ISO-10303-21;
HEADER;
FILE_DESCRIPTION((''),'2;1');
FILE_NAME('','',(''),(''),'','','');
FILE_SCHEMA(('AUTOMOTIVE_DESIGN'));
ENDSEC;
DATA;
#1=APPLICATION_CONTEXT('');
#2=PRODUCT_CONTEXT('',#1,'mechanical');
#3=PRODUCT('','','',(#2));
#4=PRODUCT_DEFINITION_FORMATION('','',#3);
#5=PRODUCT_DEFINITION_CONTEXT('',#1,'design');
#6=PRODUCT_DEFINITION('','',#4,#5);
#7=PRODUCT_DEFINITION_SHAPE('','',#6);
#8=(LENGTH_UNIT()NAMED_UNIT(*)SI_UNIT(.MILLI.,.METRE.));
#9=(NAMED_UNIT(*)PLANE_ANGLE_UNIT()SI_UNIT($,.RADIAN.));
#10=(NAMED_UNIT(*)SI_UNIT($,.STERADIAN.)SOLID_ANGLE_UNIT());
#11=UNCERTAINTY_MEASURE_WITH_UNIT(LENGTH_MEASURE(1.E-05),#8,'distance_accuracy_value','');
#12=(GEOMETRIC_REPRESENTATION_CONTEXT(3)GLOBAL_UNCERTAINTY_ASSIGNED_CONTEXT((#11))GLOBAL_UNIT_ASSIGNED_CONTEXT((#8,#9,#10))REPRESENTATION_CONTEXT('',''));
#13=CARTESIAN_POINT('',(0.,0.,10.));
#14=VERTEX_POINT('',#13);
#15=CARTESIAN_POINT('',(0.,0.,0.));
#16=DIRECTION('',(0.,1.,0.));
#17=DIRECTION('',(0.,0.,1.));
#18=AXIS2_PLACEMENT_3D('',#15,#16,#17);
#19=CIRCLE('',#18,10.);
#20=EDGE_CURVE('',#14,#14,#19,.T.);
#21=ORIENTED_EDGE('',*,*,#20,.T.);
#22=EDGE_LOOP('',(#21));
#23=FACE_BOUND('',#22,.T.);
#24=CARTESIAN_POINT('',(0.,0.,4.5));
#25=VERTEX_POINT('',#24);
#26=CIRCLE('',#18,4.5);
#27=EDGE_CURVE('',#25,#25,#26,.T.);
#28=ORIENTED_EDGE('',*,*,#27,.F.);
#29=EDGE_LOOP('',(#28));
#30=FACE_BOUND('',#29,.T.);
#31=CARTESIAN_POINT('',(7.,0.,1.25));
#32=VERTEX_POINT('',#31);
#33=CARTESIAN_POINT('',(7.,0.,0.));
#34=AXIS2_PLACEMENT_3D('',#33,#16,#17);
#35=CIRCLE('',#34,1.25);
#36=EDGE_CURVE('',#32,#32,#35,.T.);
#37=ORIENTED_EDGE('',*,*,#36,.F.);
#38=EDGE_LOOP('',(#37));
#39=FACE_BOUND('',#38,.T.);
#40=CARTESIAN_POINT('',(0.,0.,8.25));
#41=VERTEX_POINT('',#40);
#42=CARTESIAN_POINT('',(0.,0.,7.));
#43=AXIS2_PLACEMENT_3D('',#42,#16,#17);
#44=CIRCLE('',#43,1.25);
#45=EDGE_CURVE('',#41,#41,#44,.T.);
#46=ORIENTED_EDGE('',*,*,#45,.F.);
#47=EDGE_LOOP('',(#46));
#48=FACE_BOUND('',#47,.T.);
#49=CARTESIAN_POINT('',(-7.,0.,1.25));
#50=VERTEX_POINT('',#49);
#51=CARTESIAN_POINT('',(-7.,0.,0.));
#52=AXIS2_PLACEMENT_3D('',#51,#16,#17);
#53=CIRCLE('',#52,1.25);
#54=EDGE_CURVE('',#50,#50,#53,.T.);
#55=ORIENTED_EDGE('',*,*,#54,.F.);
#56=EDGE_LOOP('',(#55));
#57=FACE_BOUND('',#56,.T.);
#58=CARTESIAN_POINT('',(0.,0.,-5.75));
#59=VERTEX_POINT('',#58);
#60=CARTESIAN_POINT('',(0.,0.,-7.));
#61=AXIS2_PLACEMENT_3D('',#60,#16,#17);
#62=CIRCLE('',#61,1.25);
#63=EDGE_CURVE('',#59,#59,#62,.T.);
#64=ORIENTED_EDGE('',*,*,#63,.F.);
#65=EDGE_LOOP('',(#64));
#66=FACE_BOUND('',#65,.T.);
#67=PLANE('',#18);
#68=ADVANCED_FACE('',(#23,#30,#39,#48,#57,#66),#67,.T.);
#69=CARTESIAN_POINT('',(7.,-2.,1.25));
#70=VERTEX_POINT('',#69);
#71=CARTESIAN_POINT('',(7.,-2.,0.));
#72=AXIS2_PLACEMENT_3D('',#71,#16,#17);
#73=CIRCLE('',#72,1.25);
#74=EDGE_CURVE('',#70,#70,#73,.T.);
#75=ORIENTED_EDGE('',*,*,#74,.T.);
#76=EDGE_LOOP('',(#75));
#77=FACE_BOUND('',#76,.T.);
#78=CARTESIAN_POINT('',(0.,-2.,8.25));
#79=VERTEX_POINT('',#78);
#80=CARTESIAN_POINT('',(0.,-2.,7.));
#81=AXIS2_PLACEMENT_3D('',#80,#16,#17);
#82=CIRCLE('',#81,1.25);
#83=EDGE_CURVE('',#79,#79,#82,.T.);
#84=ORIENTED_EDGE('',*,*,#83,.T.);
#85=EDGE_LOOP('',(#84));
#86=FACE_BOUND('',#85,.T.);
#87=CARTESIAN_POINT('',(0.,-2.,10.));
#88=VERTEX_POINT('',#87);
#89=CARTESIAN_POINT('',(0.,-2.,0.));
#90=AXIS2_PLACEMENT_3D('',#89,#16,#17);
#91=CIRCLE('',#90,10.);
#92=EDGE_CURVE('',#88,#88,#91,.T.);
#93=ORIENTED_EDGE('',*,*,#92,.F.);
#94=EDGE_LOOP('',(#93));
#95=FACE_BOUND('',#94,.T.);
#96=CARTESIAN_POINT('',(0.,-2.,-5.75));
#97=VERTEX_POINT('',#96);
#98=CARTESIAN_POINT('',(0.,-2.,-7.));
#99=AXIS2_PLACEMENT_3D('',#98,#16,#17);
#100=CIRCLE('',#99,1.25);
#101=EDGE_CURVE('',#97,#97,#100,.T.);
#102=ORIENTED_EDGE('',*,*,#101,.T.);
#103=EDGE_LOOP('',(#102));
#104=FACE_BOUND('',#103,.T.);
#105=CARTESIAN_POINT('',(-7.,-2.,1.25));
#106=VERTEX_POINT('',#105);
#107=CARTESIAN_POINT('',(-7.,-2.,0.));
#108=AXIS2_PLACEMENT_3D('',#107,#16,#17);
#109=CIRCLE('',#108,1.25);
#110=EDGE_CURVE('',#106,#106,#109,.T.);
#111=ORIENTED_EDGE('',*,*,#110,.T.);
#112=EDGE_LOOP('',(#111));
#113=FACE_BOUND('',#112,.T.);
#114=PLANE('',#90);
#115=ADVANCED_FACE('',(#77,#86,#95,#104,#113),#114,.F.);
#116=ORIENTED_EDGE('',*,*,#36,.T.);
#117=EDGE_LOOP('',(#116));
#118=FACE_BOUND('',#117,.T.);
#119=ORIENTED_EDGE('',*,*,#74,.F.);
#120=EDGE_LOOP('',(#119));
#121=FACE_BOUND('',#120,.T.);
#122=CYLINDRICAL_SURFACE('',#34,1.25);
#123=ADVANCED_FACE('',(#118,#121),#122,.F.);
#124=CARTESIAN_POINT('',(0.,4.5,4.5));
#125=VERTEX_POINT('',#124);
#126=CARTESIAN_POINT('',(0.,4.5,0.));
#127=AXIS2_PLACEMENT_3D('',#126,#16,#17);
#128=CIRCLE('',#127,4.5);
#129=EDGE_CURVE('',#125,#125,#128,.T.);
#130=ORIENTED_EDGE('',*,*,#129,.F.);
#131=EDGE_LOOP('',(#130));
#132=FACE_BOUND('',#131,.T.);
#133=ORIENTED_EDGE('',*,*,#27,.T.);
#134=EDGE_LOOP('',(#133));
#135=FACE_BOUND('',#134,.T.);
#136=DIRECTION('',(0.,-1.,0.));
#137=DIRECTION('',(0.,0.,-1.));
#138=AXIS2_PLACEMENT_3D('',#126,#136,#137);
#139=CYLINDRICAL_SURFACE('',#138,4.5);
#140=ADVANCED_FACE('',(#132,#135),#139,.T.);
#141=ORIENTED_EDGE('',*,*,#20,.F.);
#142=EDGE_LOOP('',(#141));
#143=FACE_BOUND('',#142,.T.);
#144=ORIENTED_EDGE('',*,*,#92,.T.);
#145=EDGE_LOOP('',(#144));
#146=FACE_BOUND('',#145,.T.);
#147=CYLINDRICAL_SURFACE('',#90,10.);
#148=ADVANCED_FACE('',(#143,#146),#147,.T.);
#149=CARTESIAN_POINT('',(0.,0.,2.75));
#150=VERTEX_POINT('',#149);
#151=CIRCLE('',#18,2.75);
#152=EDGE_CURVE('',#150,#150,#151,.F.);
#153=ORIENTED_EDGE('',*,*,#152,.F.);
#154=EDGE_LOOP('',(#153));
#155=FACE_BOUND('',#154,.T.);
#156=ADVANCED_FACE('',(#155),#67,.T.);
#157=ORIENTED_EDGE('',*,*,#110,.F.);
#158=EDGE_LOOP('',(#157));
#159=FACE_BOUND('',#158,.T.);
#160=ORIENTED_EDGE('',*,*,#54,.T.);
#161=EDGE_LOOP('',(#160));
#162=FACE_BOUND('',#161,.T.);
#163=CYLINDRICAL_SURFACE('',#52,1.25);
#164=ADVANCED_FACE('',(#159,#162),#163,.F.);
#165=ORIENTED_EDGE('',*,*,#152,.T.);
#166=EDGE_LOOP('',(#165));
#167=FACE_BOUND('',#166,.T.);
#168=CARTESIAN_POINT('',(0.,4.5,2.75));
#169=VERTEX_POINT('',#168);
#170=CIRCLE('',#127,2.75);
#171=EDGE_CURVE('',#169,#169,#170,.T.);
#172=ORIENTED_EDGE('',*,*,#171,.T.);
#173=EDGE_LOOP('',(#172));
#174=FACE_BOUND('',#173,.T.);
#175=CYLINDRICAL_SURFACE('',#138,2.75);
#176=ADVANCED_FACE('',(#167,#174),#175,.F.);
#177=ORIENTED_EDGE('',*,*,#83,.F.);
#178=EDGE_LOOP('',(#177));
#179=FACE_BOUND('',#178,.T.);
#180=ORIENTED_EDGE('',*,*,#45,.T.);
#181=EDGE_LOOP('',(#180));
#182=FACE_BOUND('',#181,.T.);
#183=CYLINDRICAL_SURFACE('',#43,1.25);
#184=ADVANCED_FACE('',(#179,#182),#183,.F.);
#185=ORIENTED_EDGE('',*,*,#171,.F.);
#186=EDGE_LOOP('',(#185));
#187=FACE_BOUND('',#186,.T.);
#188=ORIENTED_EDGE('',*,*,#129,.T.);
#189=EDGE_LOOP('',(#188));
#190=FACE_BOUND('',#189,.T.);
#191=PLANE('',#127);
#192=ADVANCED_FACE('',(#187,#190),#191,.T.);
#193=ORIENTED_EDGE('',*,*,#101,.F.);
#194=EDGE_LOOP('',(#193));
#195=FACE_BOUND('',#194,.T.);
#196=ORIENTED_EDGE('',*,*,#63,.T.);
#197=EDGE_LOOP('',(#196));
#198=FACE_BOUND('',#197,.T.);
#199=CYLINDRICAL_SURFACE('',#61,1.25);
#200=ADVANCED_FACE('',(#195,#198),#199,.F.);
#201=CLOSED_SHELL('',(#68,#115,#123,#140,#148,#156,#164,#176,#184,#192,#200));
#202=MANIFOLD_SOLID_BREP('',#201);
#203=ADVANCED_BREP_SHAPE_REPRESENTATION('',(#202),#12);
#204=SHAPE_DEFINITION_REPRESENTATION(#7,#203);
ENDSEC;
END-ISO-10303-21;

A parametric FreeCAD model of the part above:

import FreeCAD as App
import Part
import Sketcher

V = App.Vector
Q = App.Units.Quantity


def add_polygon(sketch, points):
    """Adds a closed chain of lines whose ends are joined by coincident constraints."""
    first, n = sketch.GeometryCount, len(points)
    for a, b in zip(points, points[1:] + points[:1]):
        sketch.addGeometry(Part.LineSegment(App.Vector(*a, 0), App.Vector(*b, 0)), False)
    for i in range(n):
        sketch.addConstraint(Sketcher.Constraint("Coincident", first + i, 2, first + (i + 1) % n, 1))

doc = App.newDocument("Part")
body = doc.addObject("PartDesign::Body", "Body")

sketch1 = doc.addObject("Sketcher::SketchObject", "Sketch")
body.addObject(sketch1)
sketch1.AttachmentSupport = (doc.XZ_Plane, [""])
sketch1.MapMode = "FlatFace"
sketch1.addGeometry(Part.Circle(V(0, 0, 0), V(0, 0, 1), 10), False)
sketch1.addConstraint([
    Sketcher.Constraint("Coincident", 0, 3, -1, 1),
    Sketcher.Constraint("Diameter", 0, Q("20 mm")),
])
pad1 = doc.addObject("PartDesign::Pad", "Pad")
body.addObject(pad1)
pad1.Profile = sketch1
pad1.Length = 2

sketch2 = doc.addObject("Sketcher::SketchObject", "Sketch001")
body.addObject(sketch2)
sketch2.AttachmentSupport = (doc.XZ_Plane, [""])
sketch2.MapMode = "FlatFace"
sketch2.addGeometry([
    Part.Circle(V(0, 0, 0), V(0, 0, 1), 4.5),
    Part.Circle(V(0, 0, 0), V(0, 0, 1), 2.8),
], False)
sketch2.addConstraint([
    Sketcher.Constraint("Coincident", 0, 3, -1, 1),
    Sketcher.Constraint("Coincident", 1, 3, -1, 1),
    Sketcher.Constraint("Diameter", 0, Q("9 mm")),
    Sketcher.Constraint("Diameter", 1, Q("5.5 mm")),
])
pad2 = doc.addObject("PartDesign::Pad", "Pad001")
body.addObject(pad2)
pad2.Profile = sketch2
pad2.Length = 4.5
pad2.Reversed = True

sketch3 = doc.addObject("Sketcher::SketchObject", "Sketch002")
body.addObject(sketch3)
sketch3.AttachmentSupport = (doc.YZ_Plane, [""])
sketch3.MapMode = "FlatFace"
add_polygon(sketch3, [(-10.9, -7), (0, -7), (0, -5.8), (-10.2, -5.8)])
sketch3.addGeometry(Part.LineSegment(V(0, -7, 0), V(-10.9, -7, 0)), True)
sketch3.addConstraint([
    Sketcher.Constraint("Horizontal", 0),
    Sketcher.Constraint("Vertical", 1),
    Sketcher.Constraint("Horizontal", 2),
    Sketcher.Constraint("Horizontal", 4),
    Sketcher.Constraint("Coincident", 4, 1, 0, 2),
    Sketcher.Constraint("PointOnObject", 0, 2, -2),
    Sketcher.Constraint("Equal", 0, 4),
    Sketcher.Constraint("Angle", 3, Q("-121 deg")),
    Sketcher.Constraint("DistanceY", 0, 2, -1, 1, Q("7 mm")),
    Sketcher.Constraint("DistanceX", 2, 2, 2, 1, Q("10.16 mm")),
    Sketcher.Constraint("DistanceY", 1, 1, 1, 2, Q("1.25 mm")),
])
groove = doc.addObject("PartDesign::Groove", "Groove")
body.addObject(groove)
groove.Profile = sketch3
groove.ReferenceAxis = (sketch3, ["Axis0"])
groove.Angle = 360
doc.recompute()

polarpattern = doc.addObject("PartDesign::PolarPattern", "PolarPattern")
body.addObject(polarpattern)
polarpattern.Originals = [groove]
polarpattern.Axis = (doc.Y_Axis, [""])
polarpattern.Angle = 360
polarpattern.Occurrences = 4
body.Tip = polarpattern

doc.recompute()
